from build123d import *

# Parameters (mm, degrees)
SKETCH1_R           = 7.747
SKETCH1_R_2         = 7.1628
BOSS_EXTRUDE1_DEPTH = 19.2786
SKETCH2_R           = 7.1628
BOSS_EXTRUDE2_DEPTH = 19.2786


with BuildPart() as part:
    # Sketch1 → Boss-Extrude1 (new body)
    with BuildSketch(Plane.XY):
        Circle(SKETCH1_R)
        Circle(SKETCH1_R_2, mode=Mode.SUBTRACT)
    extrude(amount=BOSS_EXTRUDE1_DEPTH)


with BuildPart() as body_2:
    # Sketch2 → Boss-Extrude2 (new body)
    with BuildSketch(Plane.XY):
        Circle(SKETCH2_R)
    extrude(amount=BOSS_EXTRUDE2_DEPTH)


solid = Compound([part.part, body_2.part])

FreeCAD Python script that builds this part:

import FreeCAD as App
import Part
import Sketcher
Q = App.Units.Quantity

doc = App.newDocument("Part")
body = doc.addObject("PartDesign::Body", "Body")

# Sketch on XY plane
sketch1 = body.newObject("Sketcher::SketchObject", "Sketch")
sketch1.AttachmentSupport = (doc.getObject("XY_Plane"), [""])
sketch1.MapMode = "FlatFace"
sketch1.addGeometry([
    Part.Circle(App.Vector(0, 0, 0), App.Vector(0, 0, 1), 7.747),
    Part.Circle(App.Vector(0, 0, 0), App.Vector(0, 0, 1), 7.1628),
], False)
sketch1.addConstraint([
    Sketcher.Constraint("Coincident", 0, 3, -1, 1),
    Sketcher.Constraint("Coincident", 1, 3, -1, 1),
    Sketcher.Constraint("Diameter", 0, Q("0.61 in")),
    Sketcher.Constraint("Diameter", 1, Q("0.564 in")),
])
pad1 = body.newObject("PartDesign::Pad", "Pad")
pad1.Profile = sketch1
pad1.Length = Q("0.759 in")
body2 = doc.addObject("PartDesign::Body", "Body001")

# Sketch on XY plane
sketch2 = body2.newObject("Sketcher::SketchObject", "Sketch001")
sketch2.AttachmentSupport = (doc.getObject("XY_Plane001"), [""])
sketch2.MapMode = "FlatFace"
sketch2.addGeometry(Part.Circle(App.Vector(0, 0, 0), App.Vector(0, 0, 1), 7.1628), False)
sketch2.addConstraint([
    Sketcher.Constraint("Coincident", 0, 3, -1, 1),
    Sketcher.Constraint("Diameter", 0, Q("0.564 in")),
])
pad2 = body2.newObject("PartDesign::Pad", "Pad001")
pad2.Profile = sketch2
pad2.Length = Q("0.759 in")

doc.recompute()
